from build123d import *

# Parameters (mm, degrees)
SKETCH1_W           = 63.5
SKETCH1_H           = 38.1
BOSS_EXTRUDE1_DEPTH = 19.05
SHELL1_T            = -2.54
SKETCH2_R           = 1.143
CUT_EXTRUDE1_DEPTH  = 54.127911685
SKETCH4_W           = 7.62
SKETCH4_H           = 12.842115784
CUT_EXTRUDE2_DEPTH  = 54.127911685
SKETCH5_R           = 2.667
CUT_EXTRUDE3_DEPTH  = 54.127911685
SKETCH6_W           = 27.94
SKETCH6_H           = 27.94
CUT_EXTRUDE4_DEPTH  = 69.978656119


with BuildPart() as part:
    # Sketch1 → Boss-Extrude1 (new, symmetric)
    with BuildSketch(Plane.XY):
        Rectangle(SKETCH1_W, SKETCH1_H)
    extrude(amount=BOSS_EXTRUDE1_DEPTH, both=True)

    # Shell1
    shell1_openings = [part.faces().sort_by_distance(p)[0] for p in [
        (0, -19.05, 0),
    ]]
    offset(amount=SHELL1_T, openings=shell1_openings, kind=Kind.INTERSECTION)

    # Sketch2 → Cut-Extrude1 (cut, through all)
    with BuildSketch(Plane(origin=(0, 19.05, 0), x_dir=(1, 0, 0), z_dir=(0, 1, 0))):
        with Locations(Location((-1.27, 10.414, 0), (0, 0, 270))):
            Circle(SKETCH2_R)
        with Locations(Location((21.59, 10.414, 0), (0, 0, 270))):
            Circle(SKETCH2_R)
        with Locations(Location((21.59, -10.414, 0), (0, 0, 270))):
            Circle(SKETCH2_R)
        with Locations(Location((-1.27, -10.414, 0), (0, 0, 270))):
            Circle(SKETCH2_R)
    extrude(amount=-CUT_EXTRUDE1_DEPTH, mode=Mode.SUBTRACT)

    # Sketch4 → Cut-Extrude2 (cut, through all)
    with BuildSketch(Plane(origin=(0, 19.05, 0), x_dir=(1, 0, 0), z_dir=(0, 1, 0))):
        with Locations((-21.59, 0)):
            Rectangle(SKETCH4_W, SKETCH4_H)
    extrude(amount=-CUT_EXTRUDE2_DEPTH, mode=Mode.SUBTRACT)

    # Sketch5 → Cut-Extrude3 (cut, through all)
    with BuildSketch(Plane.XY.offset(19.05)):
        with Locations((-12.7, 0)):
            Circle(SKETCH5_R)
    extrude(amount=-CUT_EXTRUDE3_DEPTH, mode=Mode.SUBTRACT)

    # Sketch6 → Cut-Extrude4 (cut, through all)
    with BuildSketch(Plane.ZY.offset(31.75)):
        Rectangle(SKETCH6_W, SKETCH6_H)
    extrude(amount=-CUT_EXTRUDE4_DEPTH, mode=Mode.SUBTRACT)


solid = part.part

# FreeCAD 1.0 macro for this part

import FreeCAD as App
import Part
import Sketcher
Q = App.Units.Quantity


def faces_at(feature, points):
    """Names of the faces that lie closest to the given points."""
    faces = feature.Shape.Faces
    near = lambda p: min(range(len(faces)), key=lambda i: faces[i].distToShape(Part.Vertex(*p))[0])
    return sorted({f"Face{near(p) + 1}" for p in points})

doc = App.newDocument("Part")
params = doc.addObject("Spreadsheet::Sheet", "Params")
for row, (alias, value) in enumerate([
    ("sketch1_width", "2.5 in"),
    ("sketch1_height", "1.5 in"),
    ("pad1_length", "1.5 in"),
    ("thickness_wall", "0.1 in"),
    ("sketch2_diameter", "0.09 in"),
    ("sketch3_width", "0.3 in"),
    ("sketch4_diameter", "0.21 in"),
    ("sketch5_width", "1.1 in"),
], start=1):
    params.set(f"A{row}", alias)
    params.set(f"B{row}", "=" + value)
    params.setAlias(f"B{row}", alias)

body = doc.addObject("PartDesign::Body", "Body")

# Sketch on XY plane
sketch1 = body.newObject("Sketcher::SketchObject", "Sketch")
sketch1.AttachmentSupport = (doc.getObject("XY_Plane"), [""])
sketch1.MapMode = "FlatFace"
sketch1.addGeometry([
    Part.LineSegment(App.Vector(-32, 19, 0), App.Vector(-32, -19, 0)),
    Part.LineSegment(App.Vector(-32, -19, 0), App.Vector(32, -19, 0)),
    Part.LineSegment(App.Vector(32, -19, 0), App.Vector(32, 19, 0)),
    Part.LineSegment(App.Vector(32, 19, 0), App.Vector(-32, 19, 0)),
], False)
sketch1.addConstraint([
    Sketcher.Constraint("Coincident", 0, 2, 1, 1),
    Sketcher.Constraint("Coincident", 1, 2, 2, 1),
    Sketcher.Constraint("Coincident", 2, 2, 3, 1),
    Sketcher.Constraint("Coincident", 3, 2, 0, 1),
    Sketcher.Constraint("Vertical", 0),
    Sketcher.Constraint("Horizontal", 1),
    Sketcher.Constraint("Vertical", 2),
    Sketcher.Constraint("Horizontal", 3),
    Sketcher.Constraint("Symmetric", 0, 2, 2, 2, -1, 1),
    Sketcher.Constraint("DistanceX", 1, 1, 1, 2, Q("2.5 in")),
    Sketcher.Constraint("DistanceY", 0, 2, 0, 1, Q("1.5 in")),
])
sketch1.setExpression("Constraints[9]", "Params.sketch1_width")
sketch1.setExpression("Constraints[10]", "Params.sketch1_height")
pad1 = body.newObject("PartDesign::Pad", "Pad")
pad1.Profile = sketch1
pad1.setExpression("Length", "Params.pad1_length")
pad1.Midplane = True
doc.recompute()

thickness = body.newObject("PartDesign::Thickness", "Thickness")
thickness.Base = (pad1, faces_at(pad1, [(0, -19.05, 0)]))
thickness.setExpression("Value", "Params.thickness_wall")
thickness.Reversed = True
thickness.Join = "Intersection"

# Sketch on XZ plane
sketch2 = body.newObject("Sketcher::SketchObject", "Sketch001")
sketch2.AttachmentSupport = (doc.getObject("XZ_Plane"), [""])
sketch2.MapMode = "FlatFace"
sketch2.AttachmentOffset = App.Placement(App.Vector(0, 0, -0.75 * 25.4), App.Rotation())
sketch2.addGeometry([
    Part.Circle(App.Vector(-1.3, -10.4, 0), App.Vector(0, 0, 1), 1.1),
    Part.Circle(App.Vector(21.6, -10.4, 0), App.Vector(0, 0, 1), 1.1),
    Part.Circle(App.Vector(21.6, 10.4, 0), App.Vector(0, 0, 1), 1.1),
    Part.Circle(App.Vector(-1.3, 10.4, 0), App.Vector(0, 0, 1), 1.1),
], False)
sketch2.addConstraint([
    Sketcher.Constraint("Equal", 0, 1),
    Sketcher.Constraint("Equal", 1, 2),
    Sketcher.Constraint("Equal", 2, 3),
    Sketcher.Constraint("Symmetric", 1, 3, 2, 3, -1),
    Sketcher.Constraint("Symmetric", 0, 3, 3, 3, -1),
    Sketcher.Constraint("Horizontal", 0, 3, 1, 3),
    Sketcher.Constraint("Diameter", 0, Q("0.09 in")),
    Sketcher.Constraint("DistanceX", 0, 3, 1, 3, Q("0.9 in")),
    Sketcher.Constraint("DistanceX", 0, 3, -1, 1, Q("0.05 in")),
    Sketcher.Constraint("DistanceY", 0, 3, -1, 1, Q("0.41 in")),
])
sketch2.setExpression("Constraints[6]", "Params.sketch2_diameter")
pocket1 = body.newObject("PartDesign::Pocket", "Pocket")
pocket1.Profile = sketch2
pocket1.Type = "ThroughAll"
pocket1.Reversed = True

# Sketch on XZ plane
sketch3 = body.newObject("Sketcher::SketchObject", "Sketch002")
sketch3.AttachmentSupport = (doc.getObject("XZ_Plane"), [""])
sketch3.MapMode = "FlatFace"
sketch3.AttachmentOffset = App.Placement(App.Vector(0, 0, -0.75 * 25.4), App.Rotation())
sketch3.addGeometry([
    Part.LineSegment(App.Vector(-25, -6, 0), App.Vector(-25, 6, 0)),
    Part.LineSegment(App.Vector(-25, 6, 0), App.Vector(-18, 6, 0)),
    Part.LineSegment(App.Vector(-18, 6, 0), App.Vector(-18, -6, 0)),
    Part.LineSegment(App.Vector(-18, -6, 0), App.Vector(-25, -6, 0)),
], False)
sketch3.addConstraint([
    Sketcher.Constraint("Coincident", 0, 2, 1, 1),
    Sketcher.Constraint("Coincident", 1, 2, 2, 1),
    Sketcher.Constraint("Coincident", 2, 2, 3, 1),
    Sketcher.Constraint("Coincident", 3, 2, 0, 1),
    Sketcher.Constraint("Vertical", 0),
    Sketcher.Constraint("Horizontal", 1),
    Sketcher.Constraint("Vertical", 2),
    Sketcher.Constraint("Horizontal", 3),
    Sketcher.Constraint("DistanceX", 1, 1, 1, 2, Q("0.3 in")),
    Sketcher.Constraint("DistanceX", 0, 2, -1, 1, Q("1 in")),
    Sketcher.Constraint("DistanceY", 0, 1, 0, 2, Q("12.842116 mm")),
    Sketcher.Constraint("DistanceY", -1, 1, 0, 2, Q("6.421058 mm")),
])
sketch3.setExpression("Constraints[8]", "Params.sketch3_width")
pocket2 = body.newObject("PartDesign::Pocket", "Pocket001")
pocket2.Profile = sketch3
pocket2.Type = "ThroughAll"
pocket2.Reversed = True

# Sketch on XY plane
sketch4 = body.newObject("Sketcher::SketchObject", "Sketch003")
sketch4.AttachmentSupport = (doc.getObject("XY_Plane"), [""])
sketch4.MapMode = "FlatFace"
sketch4.AttachmentOffset = App.Placement(App.Vector(0, 0, 0.75 * 25.4), App.Rotation())
sketch4.addGeometry(Part.Circle(App.Vector(-12.7, 0, 0), App.Vector(0, 0, 1), 2.7), False)
sketch4.addConstraint([
    Sketcher.Constraint("PointOnObject", 0, 3, -1),
    Sketcher.Constraint("Diameter", 0, Q("0.21 in")),
    Sketcher.Constraint("DistanceX", 0, 3, -1, 1, Q("0.5 in")),
])
sketch4.setExpression("Constraints[1]", "Params.sketch4_diameter")
pocket3 = body.newObject("PartDesign::Pocket", "Pocket002")
pocket3.Profile = sketch4
pocket3.Type = "ThroughAll"

# Sketch on YZ plane
sketch5 = body.newObject("Sketcher::SketchObject", "Sketch004")
sketch5.AttachmentSupport = (doc.getObject("YZ_Plane"), [""])
sketch5.MapMode = "FlatFace"
sketch5.AttachmentOffset = App.Placement(App.Vector(0, 0, -1.25 * 25.4), App.Rotation())
sketch5.addGeometry([
    Part.LineSegment(App.Vector(14, -14, 0), App.Vector(-14, -14, 0)),
    Part.LineSegment(App.Vector(-14, -14, 0), App.Vector(-14, 14, 0)),
    Part.LineSegment(App.Vector(-14, 14, 0), App.Vector(14, 14, 0)),
    Part.LineSegment(App.Vector(14, 14, 0), App.Vector(14, -14, 0)),
], False)
sketch5.addConstraint([
    Sketcher.Constraint("Coincident", 0, 2, 1, 1),
    Sketcher.Constraint("Coincident", 1, 2, 2, 1),
    Sketcher.Constraint("Coincident", 2, 2, 3, 1),
    Sketcher.Constraint("Coincident", 3, 2, 0, 1),
    Sketcher.Constraint("Horizontal", 0),
    Sketcher.Constraint("Vertical", 1),
    Sketcher.Constraint("Horizontal", 2),
    Sketcher.Constraint("Vertical", 3),
    Sketcher.Constraint("Symmetric", 0, 2, 2, 2, -1, 1),
    Sketcher.Constraint("Equal", 2, 1),
    Sketcher.Constraint("DistanceX", 0, 2, 0, 1, Q("1.1 in")),
])
sketch5.setExpression("Constraints[10]", "Params.sketch5_width")
pocket4 = body.newObject("PartDesign::Pocket", "Pocket003")
pocket4.Profile = sketch5
pocket4.Type = "ThroughAll"
pocket4.Reversed = True

doc.recompute()
